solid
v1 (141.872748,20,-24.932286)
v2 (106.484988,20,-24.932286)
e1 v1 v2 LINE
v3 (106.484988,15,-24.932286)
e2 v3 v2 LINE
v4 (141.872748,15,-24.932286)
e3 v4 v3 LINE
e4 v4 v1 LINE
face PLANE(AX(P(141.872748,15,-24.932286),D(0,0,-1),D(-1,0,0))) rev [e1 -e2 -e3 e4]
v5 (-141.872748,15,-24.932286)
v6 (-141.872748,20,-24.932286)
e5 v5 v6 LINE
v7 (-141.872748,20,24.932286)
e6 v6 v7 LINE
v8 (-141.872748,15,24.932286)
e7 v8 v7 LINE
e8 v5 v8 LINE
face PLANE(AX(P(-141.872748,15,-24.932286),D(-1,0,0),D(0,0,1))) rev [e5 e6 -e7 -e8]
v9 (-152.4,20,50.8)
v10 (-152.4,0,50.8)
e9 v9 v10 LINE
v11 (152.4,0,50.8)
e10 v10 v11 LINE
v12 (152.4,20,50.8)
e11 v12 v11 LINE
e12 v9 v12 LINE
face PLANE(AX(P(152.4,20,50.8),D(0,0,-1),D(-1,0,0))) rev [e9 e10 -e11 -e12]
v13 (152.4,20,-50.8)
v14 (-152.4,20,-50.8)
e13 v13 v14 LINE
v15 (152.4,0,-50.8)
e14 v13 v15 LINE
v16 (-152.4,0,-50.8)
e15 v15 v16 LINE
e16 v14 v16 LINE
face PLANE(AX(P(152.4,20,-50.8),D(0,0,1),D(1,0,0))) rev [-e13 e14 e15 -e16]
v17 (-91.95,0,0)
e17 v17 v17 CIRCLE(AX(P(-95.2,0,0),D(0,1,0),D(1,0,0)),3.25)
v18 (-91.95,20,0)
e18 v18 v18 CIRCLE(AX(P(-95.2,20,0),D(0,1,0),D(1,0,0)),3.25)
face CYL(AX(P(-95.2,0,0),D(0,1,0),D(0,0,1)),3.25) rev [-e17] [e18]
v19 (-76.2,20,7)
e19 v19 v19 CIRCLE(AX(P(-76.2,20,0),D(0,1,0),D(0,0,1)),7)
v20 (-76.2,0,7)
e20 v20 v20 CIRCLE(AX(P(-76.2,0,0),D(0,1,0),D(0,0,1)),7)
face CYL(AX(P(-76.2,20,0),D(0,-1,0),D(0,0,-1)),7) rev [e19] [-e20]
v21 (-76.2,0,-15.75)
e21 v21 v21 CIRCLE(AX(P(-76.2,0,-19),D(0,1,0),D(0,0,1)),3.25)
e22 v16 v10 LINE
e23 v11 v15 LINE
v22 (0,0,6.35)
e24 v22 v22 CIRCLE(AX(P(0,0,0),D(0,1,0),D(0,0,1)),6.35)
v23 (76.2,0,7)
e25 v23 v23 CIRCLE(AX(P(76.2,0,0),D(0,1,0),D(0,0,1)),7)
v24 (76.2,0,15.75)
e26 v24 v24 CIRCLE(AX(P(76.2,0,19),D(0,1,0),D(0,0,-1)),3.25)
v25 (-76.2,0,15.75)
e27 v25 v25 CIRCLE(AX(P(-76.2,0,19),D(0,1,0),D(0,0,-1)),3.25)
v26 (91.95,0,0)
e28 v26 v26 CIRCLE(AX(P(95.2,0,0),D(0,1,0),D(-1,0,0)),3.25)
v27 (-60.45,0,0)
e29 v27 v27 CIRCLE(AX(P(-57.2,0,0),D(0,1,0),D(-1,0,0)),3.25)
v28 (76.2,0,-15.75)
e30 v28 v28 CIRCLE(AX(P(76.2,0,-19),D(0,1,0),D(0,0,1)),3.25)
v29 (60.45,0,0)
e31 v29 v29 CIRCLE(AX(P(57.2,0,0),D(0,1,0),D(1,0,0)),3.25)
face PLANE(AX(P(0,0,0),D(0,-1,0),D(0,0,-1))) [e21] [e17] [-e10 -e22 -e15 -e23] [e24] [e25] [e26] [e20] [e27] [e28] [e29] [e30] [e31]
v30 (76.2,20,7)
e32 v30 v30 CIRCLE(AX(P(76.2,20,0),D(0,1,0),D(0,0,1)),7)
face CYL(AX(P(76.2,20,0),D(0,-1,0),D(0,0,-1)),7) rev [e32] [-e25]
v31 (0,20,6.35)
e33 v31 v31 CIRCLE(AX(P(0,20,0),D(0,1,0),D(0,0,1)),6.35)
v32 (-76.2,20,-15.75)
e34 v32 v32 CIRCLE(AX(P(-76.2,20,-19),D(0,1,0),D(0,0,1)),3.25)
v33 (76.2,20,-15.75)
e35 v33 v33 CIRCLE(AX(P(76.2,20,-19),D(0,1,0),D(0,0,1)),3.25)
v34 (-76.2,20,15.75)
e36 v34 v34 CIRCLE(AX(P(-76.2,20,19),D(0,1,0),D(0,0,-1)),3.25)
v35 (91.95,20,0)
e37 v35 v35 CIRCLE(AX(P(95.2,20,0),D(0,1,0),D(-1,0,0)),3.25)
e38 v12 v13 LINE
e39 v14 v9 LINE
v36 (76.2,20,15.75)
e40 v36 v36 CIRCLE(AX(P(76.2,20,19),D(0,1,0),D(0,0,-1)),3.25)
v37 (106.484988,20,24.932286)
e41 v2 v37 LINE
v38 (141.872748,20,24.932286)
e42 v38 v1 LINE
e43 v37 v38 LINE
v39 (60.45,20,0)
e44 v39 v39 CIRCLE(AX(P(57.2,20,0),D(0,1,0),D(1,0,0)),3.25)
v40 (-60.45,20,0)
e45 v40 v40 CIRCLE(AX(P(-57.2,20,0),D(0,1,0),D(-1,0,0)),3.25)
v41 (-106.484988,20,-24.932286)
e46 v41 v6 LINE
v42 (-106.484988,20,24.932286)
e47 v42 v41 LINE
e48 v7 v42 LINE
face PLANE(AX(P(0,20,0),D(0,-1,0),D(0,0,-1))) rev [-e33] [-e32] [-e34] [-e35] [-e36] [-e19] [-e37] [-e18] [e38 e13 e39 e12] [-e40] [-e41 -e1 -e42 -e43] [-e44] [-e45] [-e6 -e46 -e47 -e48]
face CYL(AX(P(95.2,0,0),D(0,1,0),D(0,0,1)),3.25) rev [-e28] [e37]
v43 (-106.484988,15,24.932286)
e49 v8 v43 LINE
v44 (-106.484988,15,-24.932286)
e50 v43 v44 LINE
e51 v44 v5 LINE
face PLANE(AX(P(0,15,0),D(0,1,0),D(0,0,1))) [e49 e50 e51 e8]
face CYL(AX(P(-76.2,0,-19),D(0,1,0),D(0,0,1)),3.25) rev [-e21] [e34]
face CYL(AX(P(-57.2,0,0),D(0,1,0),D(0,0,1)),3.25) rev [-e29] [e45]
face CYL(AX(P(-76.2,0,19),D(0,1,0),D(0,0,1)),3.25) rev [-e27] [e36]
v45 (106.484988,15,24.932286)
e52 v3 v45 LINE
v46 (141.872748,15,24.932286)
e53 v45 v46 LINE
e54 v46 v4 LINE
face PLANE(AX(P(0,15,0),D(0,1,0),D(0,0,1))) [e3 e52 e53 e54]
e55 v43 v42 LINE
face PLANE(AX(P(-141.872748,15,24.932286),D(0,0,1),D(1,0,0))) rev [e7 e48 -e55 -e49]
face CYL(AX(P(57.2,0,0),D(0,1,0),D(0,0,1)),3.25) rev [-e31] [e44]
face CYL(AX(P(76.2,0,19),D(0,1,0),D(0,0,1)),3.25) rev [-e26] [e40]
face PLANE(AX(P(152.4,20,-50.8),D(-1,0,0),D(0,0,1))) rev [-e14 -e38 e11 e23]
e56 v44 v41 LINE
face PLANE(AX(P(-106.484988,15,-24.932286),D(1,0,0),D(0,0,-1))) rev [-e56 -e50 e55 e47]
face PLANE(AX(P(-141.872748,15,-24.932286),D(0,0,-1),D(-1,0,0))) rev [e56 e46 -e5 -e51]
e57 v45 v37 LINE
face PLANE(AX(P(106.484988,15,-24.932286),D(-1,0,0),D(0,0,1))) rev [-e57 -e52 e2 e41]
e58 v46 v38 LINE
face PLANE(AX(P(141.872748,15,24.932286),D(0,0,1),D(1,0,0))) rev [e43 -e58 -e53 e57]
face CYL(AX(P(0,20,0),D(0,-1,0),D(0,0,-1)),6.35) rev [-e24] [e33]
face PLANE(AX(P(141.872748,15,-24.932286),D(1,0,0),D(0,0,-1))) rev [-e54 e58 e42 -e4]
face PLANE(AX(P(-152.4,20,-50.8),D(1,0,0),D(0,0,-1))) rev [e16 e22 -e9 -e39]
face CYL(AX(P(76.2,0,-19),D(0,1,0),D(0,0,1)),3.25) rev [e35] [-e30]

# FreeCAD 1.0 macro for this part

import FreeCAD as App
import Part
import Sketcher
from FreeCAD import Vector


def add_polygon(sketch, points):
    """Adds a closed chain of lines whose ends are joined by coincident constraints."""
    first, n = sketch.GeometryCount, len(points)
    for a, b in zip(points, points[1:] + points[:1]):
        sketch.addGeometry(Part.LineSegment(App.Vector(*a, 0), App.Vector(*b, 0)), False)
    for i in range(n):
        sketch.addConstraint(Sketcher.Constraint("Coincident", first + i, 2, first + (i + 1) % n, 1))

doc = App.newDocument("Part")
body = doc.addObject("PartDesign::Body", "Body")

# Sketch on XZ plane
sketch1 = doc.addObject("Sketcher::SketchObject", "Sketch")
body.addObject(sketch1)
sketch1.AttachmentSupport = (doc.XZ_Plane, [""])
sketch1.MapMode = "FlatFace"
add_polygon(sketch1, [(-152, -51), (-152, 51), (152, 51), (152, -51)])  # lines 0-3
sketch1.addGeometry(Part.Circle(Vector(-76, 0, 0), Vector(0, 0, 1), 7), False)  # 4
sketch1.addGeometry(Part.Circle(Vector(0, 0, 0), Vector(0, 0, 1), 6), False)  # 5
sketch1.addGeometry(Part.Circle(Vector(76, 0, 0), Vector(0, 0, 1), 7), False)  # 6
sketch1.addConstraint([
    Sketcher.Constraint("Vertical", 0),
    Sketcher.Constraint("Horizontal", 1),
    Sketcher.Constraint("Vertical", 2),
    Sketcher.Constraint("Horizontal", 3),
    Sketcher.Constraint("Coincident", 5, 3, -1, 1),
    Sketcher.Constraint("Equal", 4, 6),
    Sketcher.Constraint("Symmetric", 4, 3, 6, 3, -1, 1),
    Sketcher.Constraint("Symmetric", 0, 2, 2, 2, -1, 1),
    Sketcher.Constraint("PointOnObject", 4, 3, -1),
    Sketcher.Constraint("Diameter", 4, 14.0),
    Sketcher.Constraint("Diameter", 5, 12.7),
    Sketcher.Constraint("DistanceX", 1, 1, 1, 2, 304.8),
    Sketcher.Constraint("DistanceY", 0, 1, 0, 2, 101.6),
    Sketcher.Constraint("DistanceX", 4, 3, -1, 1, 76.2),
])
pad1 = doc.addObject("PartDesign::Pad", "Pad")
body.addObject(pad1)
pad1.Profile = sketch1
pad1.Length = 20
pad1.Reversed = True

# Sketch on XZ plane
sketch2 = doc.addObject("Sketcher::SketchObject", "Sketch001")
body.addObject(sketch2)
sketch2.AttachmentSupport = (doc.XZ_Plane, [""])
sketch2.MapMode = "FlatFace"
sketch2.AttachmentOffset = App.Placement(Vector(0, 0, -20), App.Rotation())
sketch2.addGeometry(Part.Circle(Vector(-76.2, -19, 0), Vector(0, 0, 1), 3.2), False)
sketch2.addConstraint([
    Sketcher.Constraint("Diameter", 0, 6.5),
    Sketcher.Constraint("DistanceY", 0, 3, -1, 1, 19.0),
    Sketcher.Constraint("DistanceX", 0, 3, -1, 1, 76.2),
])
pocket1 = doc.addObject("PartDesign::Pocket", "Pocket")
body.addObject(pocket1)
pocket1.Profile = sketch2
pocket1.Type = "ThroughAll"
pocket1.Reversed = True
doc.recompute()

datumline = doc.addObject("PartDesign::Line", "DatumLine")
body.addObject(datumline)
datumline.Placement = App.Placement(Vector(-76.2, 0, 0), App.Rotation(Vector(0, 0, 1), Vector(0, 1, 0)))
polarpattern = doc.addObject("PartDesign::PolarPattern", "PolarPattern")
body.addObject(polarpattern)
polarpattern.Originals = [pocket1]
polarpattern.Axis = (datumline, [""])
polarpattern.Angle = 360
polarpattern.Occurrences = 4
body.Tip = polarpattern
doc.recompute()

linearpattern = doc.addObject("PartDesign::LinearPattern", "LinearPattern")
body.addObject(linearpattern)
linearpattern.Originals = [pocket1]
linearpattern.Direction = (doc.X_Axis, [""])
linearpattern.Mode = "offset"
linearpattern.Offset = 152.4
linearpattern.Occurrences = 2
body.Tip = linearpattern

# Sketch on XZ plane
sketch3 = doc.addObject("Sketcher::SketchObject", "Sketch002")
body.addObject(sketch3)
sketch3.AttachmentSupport = (doc.XZ_Plane, [""])
sketch3.MapMode = "FlatFace"
sketch3.AttachmentOffset = App.Placement(Vector(0, 0, -20), App.Rotation())
sketch3.addGeometry(Part.Circle(Vector(57.2, 0, 0), Vector(0, 0, 1), 3.2), False)
sketch3.addConstraint([
    Sketcher.Constraint("PointOnObject", 0, 3, -1),
    Sketcher.Constraint("Diameter", 0, 6.5),
    Sketcher.Constraint("DistanceX", -1, 1, 0, 3, 57.2),
])
pocket2 = doc.addObject("PartDesign::Pocket", "Pocket001")
body.addObject(pocket2)
pocket2.Profile = sketch3
pocket2.Type = "ThroughAll"
pocket2.Reversed = True

# Sketch on XZ plane
sketch4 = doc.addObject("Sketcher::SketchObject", "Sketch003")
body.addObject(sketch4)
sketch4.AttachmentSupport = (doc.XZ_Plane, [""])
sketch4.MapMode = "FlatFace"
sketch4.AttachmentOffset = App.Placement(Vector(0, 0, -20), App.Rotation())
sketch4.addGeometry(Part.Circle(Vector(76.2, 19, 0), Vector(0, 0, 1), 3.2), False)
sketch4.addConstraint([
    Sketcher.Constraint("Diameter", 0, 6.5),
    Sketcher.Constraint("DistanceY", -1, 1, 0, 3, 19.0),
    Sketcher.Constraint("DistanceX", -1, 1, 0, 3, 76.2),
])
pocket3 = doc.addObject("PartDesign::Pocket", "Pocket002")
body.addObject(pocket3)
pocket3.Profile = sketch4
pocket3.Type = "ThroughAll"
pocket3.Reversed = True

# Sketch on XZ plane
sketch5 = doc.addObject("Sketcher::SketchObject", "Sketch004")
body.addObject(sketch5)
sketch5.AttachmentSupport = (doc.XZ_Plane, [""])
sketch5.MapMode = "FlatFace"
sketch5.AttachmentOffset = App.Placement(Vector(0, 0, -20), App.Rotation())
sketch5.addGeometry(Part.Circle(Vector(95.2, 0, 0), Vector(0, 0, 1), 3.2), False)
sketch5.addConstraint([
    Sketcher.Constraint("PointOnObject", 0, 3, -1),
    Sketcher.Constraint("Diameter", 0, 6.5),
    Sketcher.Constraint("DistanceX", -1, 1, 0, 3, 95.2),
])
pocket4 = doc.addObject("PartDesign::Pocket", "Pocket003")
body.addObject(pocket4)
pocket4.Profile = sketch5
pocket4.Type = "ThroughAll"
pocket4.Reversed = True

# Sketch on XZ plane
sketch6 = doc.addObject("Sketcher::SketchObject", "Sketch005")
body.addObject(sketch6)
sketch6.AttachmentSupport = (doc.XZ_Plane, [""])
sketch6.MapMode = "FlatFace"
sketch6.AttachmentOffset = App.Placement(Vector(0, 0, -20), App.Rotation())
add_polygon(sketch6, [(-142, -25), (-142, 25), (-106, 25), (-106, -25)])  # lines 0-3
add_polygon(sketch6, [(106, -25), (106, 25), (142, 25), (142, -25)])  # lines 4-7
sketch6.addConstraint([
    Sketcher.Constraint("Vertical", 0),
    Sketcher.Constraint("Horizontal", 1),
    Sketcher.Constraint("Vertical", 2),
    Sketcher.Constraint("Horizontal", 3),
    Sketcher.Constraint("Vertical", 4),
    Sketcher.Constraint("Horizontal", 5),
    Sketcher.Constraint("Vertical", 6),
    Sketcher.Constraint("Horizontal", 7),
    Sketcher.Constraint("Symmetric", 2, 2, 4, 2, -1, 1),
    Sketcher.Constraint("Symmetric", 0, 2, 6, 2, -1, 1),
    Sketcher.Constraint("Horizontal", 1, 2, 4, 2),
    Sketcher.Constraint("DistanceX", 1, 1, 1, 2, 35.38776),
    Sketcher.Constraint("DistanceY", 0, 1, 0, 2, 49.864571),
    Sketcher.Constraint("DistanceX", 0, 2, -1, 1, 141.872748),
])
pocket5 = doc.addObject("PartDesign::Pocket", "Pocket004")
body.addObject(pocket5)
pocket5.Profile = sketch6
pocket5.Length = 5
pocket5.Reversed = True

doc.recompute()
